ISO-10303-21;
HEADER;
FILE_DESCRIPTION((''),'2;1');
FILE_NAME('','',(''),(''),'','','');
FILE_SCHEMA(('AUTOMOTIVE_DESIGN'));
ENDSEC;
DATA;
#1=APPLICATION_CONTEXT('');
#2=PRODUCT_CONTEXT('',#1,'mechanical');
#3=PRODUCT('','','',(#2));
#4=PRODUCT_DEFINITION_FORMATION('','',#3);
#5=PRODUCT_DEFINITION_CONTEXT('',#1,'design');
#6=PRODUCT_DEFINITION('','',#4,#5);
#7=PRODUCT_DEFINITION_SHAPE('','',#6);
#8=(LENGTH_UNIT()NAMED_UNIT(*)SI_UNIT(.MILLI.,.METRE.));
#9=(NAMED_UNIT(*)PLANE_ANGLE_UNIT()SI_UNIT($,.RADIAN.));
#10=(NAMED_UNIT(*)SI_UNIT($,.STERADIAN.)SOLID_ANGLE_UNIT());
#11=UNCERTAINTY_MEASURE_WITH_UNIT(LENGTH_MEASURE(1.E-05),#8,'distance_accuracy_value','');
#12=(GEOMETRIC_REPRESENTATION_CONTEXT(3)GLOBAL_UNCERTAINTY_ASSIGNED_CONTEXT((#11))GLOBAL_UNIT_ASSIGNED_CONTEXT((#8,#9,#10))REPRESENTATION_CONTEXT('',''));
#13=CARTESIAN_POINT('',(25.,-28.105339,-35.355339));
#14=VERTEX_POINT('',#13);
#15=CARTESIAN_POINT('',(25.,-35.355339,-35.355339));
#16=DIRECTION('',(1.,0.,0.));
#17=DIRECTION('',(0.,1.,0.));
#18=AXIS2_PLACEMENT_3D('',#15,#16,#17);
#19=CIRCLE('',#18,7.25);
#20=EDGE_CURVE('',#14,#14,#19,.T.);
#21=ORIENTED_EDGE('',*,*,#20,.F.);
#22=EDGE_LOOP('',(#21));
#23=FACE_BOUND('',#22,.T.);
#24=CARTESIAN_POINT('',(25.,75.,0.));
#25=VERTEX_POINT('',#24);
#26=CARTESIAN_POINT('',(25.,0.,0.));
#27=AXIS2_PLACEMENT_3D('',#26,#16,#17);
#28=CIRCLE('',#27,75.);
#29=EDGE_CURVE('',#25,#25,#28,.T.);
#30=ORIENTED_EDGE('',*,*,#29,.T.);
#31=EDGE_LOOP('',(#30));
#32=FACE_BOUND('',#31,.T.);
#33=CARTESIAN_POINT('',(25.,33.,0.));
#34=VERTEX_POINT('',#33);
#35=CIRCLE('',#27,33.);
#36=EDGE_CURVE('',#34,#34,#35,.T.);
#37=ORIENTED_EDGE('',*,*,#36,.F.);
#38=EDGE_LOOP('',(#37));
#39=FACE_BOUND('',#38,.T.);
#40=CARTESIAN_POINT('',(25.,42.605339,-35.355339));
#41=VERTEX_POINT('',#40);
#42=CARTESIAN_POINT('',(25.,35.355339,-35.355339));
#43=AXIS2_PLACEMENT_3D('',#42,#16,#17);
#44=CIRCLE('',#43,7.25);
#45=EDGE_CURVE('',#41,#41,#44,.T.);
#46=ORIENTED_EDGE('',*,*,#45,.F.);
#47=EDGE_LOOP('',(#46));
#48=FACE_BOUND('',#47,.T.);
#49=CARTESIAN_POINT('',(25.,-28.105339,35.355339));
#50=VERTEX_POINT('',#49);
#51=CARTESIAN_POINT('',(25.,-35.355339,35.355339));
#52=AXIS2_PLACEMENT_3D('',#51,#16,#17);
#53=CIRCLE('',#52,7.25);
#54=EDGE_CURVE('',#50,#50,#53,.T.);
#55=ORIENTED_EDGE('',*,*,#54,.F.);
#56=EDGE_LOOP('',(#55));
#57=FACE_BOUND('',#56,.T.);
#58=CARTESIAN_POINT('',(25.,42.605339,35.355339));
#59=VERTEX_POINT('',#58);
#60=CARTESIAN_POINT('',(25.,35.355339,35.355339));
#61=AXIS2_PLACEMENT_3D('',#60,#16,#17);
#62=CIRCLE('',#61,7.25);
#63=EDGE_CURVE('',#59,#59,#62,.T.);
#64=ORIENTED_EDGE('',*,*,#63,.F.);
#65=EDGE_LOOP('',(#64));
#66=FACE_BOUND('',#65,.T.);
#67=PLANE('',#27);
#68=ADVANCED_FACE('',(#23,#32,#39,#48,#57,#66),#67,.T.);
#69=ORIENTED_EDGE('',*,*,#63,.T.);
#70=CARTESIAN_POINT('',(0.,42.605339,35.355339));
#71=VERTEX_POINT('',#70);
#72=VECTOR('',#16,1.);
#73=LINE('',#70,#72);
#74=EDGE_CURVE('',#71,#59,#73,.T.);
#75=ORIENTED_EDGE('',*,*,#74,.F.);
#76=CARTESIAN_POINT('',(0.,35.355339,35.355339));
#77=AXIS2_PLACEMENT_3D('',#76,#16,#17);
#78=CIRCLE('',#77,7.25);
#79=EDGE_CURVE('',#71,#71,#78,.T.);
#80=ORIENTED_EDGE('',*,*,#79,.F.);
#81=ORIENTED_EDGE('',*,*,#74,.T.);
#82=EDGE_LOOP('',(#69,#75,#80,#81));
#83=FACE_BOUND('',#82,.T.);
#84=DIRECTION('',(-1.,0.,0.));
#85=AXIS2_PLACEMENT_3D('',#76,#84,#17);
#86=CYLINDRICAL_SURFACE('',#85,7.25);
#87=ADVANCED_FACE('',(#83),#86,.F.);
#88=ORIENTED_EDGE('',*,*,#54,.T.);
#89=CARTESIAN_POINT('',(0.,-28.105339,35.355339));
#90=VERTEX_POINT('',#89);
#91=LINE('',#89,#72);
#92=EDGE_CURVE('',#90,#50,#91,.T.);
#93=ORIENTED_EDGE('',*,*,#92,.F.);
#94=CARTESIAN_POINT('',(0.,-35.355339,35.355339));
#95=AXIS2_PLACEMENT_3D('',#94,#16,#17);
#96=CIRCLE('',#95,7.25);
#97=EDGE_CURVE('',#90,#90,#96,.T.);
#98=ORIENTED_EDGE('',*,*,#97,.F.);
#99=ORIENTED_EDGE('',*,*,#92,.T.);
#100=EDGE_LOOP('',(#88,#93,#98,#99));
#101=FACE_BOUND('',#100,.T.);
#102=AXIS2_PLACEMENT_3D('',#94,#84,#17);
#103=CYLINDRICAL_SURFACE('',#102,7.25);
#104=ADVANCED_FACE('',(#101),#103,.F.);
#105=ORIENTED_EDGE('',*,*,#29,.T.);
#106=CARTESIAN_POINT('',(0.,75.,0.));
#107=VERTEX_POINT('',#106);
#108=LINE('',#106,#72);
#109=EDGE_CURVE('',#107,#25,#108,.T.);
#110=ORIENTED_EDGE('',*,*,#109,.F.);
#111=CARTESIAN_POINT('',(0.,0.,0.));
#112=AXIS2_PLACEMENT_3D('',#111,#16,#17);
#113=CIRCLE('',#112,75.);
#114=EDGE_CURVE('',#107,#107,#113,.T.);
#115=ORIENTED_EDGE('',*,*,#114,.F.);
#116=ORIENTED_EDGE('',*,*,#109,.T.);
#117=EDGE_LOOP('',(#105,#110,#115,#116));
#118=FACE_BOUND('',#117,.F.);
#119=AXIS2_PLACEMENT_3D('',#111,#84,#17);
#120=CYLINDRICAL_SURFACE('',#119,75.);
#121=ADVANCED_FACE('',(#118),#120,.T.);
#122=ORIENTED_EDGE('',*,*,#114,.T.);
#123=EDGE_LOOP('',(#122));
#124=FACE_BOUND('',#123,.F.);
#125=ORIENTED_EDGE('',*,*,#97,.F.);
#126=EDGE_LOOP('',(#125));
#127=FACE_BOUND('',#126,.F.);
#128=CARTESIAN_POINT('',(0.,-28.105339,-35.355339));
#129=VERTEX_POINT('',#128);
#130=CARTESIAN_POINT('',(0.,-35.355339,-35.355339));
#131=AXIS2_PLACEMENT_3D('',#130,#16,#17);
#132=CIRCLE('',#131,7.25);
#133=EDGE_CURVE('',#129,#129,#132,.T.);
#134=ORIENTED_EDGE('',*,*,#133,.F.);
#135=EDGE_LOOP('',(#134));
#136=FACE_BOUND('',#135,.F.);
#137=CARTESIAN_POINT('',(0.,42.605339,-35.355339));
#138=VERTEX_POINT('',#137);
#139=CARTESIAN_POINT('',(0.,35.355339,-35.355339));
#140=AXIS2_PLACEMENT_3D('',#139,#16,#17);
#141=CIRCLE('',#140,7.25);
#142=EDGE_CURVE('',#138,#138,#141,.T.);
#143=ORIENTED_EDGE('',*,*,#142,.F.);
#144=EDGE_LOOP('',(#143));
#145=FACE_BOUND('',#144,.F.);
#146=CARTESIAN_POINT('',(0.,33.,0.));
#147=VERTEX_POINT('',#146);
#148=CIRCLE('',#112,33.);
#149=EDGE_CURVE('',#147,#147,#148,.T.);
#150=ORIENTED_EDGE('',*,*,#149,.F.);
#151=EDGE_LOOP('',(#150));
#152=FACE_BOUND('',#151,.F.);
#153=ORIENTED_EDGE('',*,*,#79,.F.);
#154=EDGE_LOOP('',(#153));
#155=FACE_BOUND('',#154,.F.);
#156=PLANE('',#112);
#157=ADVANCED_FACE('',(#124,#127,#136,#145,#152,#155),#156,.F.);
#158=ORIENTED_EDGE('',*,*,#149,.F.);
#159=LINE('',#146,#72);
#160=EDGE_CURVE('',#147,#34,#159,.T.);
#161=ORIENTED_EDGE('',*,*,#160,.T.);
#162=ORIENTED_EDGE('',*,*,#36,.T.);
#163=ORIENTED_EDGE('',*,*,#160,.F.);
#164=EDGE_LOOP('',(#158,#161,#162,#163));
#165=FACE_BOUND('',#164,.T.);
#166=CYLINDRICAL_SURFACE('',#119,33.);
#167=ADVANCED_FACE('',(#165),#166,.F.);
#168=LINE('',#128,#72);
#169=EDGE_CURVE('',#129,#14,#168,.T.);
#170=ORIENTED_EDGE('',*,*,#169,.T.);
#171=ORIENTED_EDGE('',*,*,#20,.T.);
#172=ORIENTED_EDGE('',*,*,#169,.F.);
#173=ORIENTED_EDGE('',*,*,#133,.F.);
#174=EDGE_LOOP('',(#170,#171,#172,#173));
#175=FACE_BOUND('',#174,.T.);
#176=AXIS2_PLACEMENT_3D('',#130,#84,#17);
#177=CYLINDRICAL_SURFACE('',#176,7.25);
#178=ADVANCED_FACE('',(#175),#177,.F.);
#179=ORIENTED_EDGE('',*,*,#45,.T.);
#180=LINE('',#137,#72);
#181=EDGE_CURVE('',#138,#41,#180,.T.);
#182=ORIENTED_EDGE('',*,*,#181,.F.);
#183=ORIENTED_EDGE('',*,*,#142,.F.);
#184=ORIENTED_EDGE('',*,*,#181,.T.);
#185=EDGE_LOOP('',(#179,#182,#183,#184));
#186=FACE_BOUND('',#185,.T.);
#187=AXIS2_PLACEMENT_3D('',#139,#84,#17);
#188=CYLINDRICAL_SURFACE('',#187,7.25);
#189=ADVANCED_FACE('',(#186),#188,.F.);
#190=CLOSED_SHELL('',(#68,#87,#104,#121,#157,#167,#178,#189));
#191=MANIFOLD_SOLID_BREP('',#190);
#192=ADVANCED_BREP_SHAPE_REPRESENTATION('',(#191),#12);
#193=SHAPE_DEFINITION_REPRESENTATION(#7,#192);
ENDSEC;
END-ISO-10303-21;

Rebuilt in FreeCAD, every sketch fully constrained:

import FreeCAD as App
import Part
import Sketcher

V = App.Vector
Q = App.Units.Quantity

doc = App.newDocument("Part")
params = doc.addObject("Spreadsheet::Sheet", "Params")
for row, (alias, value) in enumerate([
    ("sketch1_diameter", "150 mm"),
    ("sketch1_diameter2", "66 mm"),
    ("sketch1_diameter3", "14.5 mm"),
    ("pad1_length", "25 mm"),
], start=1):
    params.set(f"A{row}", alias)
    params.set(f"B{row}", "=" + value)
    params.setAlias(f"B{row}", alias)

body = doc.addObject("PartDesign::Body", "Body")

# Sketch on YZ plane
sketch1 = doc.addObject("Sketcher::SketchObject", "Sketch")
body.addObject(sketch1)
sketch1.AttachmentSupport = (doc.YZ_Plane, [""])
sketch1.MapMode = "FlatFace"
sketch1.addGeometry(Part.Circle(V(0, 0, 0), V(0, 0, 1), 75), False)
sketch1.addGeometry(Part.Circle(V(-35, -35, 0), V(0, 0, 1), 7), False)
sketch1.addGeometry(Part.Circle(V(35, -35, 0), V(0, 0, 1), 7), False)
sketch1.addGeometry(Part.Circle(V(-35, 35, 0), V(0, 0, 1), 7), False)
sketch1.addGeometry(Part.Circle(V(0, 0, 0), V(0, 0, 1), 33), False)
sketch1.addGeometry(Part.Circle(V(35, 35, 0), V(0, 0, 1), 7), False)
sketch1.addConstraint(Sketcher.Constraint("Coincident", 0, 3, -1, 1))
sketch1.addConstraint(Sketcher.Constraint("Coincident", 4, 3, -1, 1))
sketch1.addConstraint(Sketcher.Constraint("Equal", 1, 2))
sketch1.addConstraint(Sketcher.Constraint("Equal", 2, 3))
sketch1.addConstraint(Sketcher.Constraint("Equal", 3, 5))
sketch1.addConstraint(Sketcher.Constraint("Symmetric", 2, 3, 3, 3, -1, 1))
sketch1.addConstraint(Sketcher.Constraint("Symmetric", 1, 3, 5, 3, -1, 1))
sketch1.addConstraint(Sketcher.Constraint("Symmetric", 1, 3, 2, 3, -2))
sketch1.addConstraint(Sketcher.Constraint("Diameter", 0, Q("150 mm")))
sketch1.addConstraint(Sketcher.Constraint("Diameter", 4, Q("66 mm")))
sketch1.addConstraint(Sketcher.Constraint("Diameter", 1, Q("14.5 mm")))
sketch1.addConstraint(Sketcher.Constraint("DistanceX", 1, 3, -1, 1, Q("35.355339 mm")))
sketch1.addConstraint(Sketcher.Constraint("DistanceY", 1, 3, -1, 1, Q("35.355339 mm")))
sketch1.setExpression("Constraints[8]", "Params.sketch1_diameter")
sketch1.setExpression("Constraints[9]", "Params.sketch1_diameter2")
sketch1.setExpression("Constraints[10]", "Params.sketch1_diameter3")
pad1 = doc.addObject("PartDesign::Pad", "Pad")
body.addObject(pad1)
pad1.Profile = sketch1
pad1.setExpression("Length", "Params.pad1_length")

doc.recompute()
